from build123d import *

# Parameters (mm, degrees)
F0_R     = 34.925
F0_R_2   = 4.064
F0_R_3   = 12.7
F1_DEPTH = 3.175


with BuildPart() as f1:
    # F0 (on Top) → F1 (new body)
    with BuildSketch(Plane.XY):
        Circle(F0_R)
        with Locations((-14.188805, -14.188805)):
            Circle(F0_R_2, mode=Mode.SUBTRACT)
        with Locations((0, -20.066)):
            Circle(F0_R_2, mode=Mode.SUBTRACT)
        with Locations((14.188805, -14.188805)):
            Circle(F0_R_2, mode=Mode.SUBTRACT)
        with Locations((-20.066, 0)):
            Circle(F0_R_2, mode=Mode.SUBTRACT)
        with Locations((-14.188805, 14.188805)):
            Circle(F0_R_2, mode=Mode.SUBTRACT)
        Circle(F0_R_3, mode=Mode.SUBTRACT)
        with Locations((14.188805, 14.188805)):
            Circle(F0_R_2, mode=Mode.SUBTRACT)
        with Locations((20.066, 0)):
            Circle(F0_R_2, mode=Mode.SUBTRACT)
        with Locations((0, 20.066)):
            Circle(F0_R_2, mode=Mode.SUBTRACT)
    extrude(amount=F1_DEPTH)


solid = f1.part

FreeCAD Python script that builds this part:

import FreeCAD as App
import Part
import Sketcher

V = App.Vector
Q = App.Units.Quantity

doc = App.newDocument("Part")
params = doc.addObject("Spreadsheet::Sheet", "Params")
for row, (alias, value) in enumerate([
    ("sketch1_diameter", "1 in"),
    ("sketch1_diameter2", "2.75 in"),
    ("sketch1_diameter3", "0.32 in"),
    ("pad1_length", "0.125 in"),
], start=1):
    params.set(f"A{row}", alias)
    params.set(f"B{row}", "=" + value)
    params.setAlias(f"B{row}", alias)

body = doc.addObject("PartDesign::Body", "Body")

# Sketch on XY plane
sketch1 = body.newObject("Sketcher::SketchObject", "Sketch")
sketch1.AttachmentSupport = (doc.getObject("XY_Plane"), [""])
sketch1.MapMode = "FlatFace"
sketch1.addGeometry([
    Part.Circle(V(0, 0, 0), V(0, 0, 1), 34.9),  # 0
    Part.Circle(V(-14.2, -14.2, 0), V(0, 0, 1), 4.1),  # 1
    Part.Circle(V(0, -20.1, 0), V(0, 0, 1), 4.1),  # 2
    Part.Circle(V(14.2, -14.2, 0), V(0, 0, 1), 4.1),  # 3
    Part.Circle(V(-20.1, 0, 0), V(0, 0, 1), 4.1),  # 4
    Part.Circle(V(-14.2, 14.2, 0), V(0, 0, 1), 4.1),  # 5
    Part.Circle(V(0, 0, 0), V(0, 0, 1), 12.7),  # 6
    Part.Circle(V(20.1, 0, 0), V(0, 0, 1), 4.1),  # 7
    Part.Circle(V(0, 20.1, 0), V(0, 0, 1), 4.1),  # 8
    Part.Circle(V(14.2, 14.2, 0), V(0, 0, 1), 4.1),  # 9
], False)
sketch1.addConstraint([
    Sketcher.Constraint("Coincident", 0, 3, -1, 1),
    Sketcher.Constraint("Coincident", 6, 3, -1, 1),
    Sketcher.Constraint("Equal", 1, 2),
    Sketcher.Constraint("Equal", 2, 3),
    Sketcher.Constraint("Equal", 3, 4),
    Sketcher.Constraint("Equal", 4, 5),
    Sketcher.Constraint("Equal", 5, 7),
    Sketcher.Constraint("Equal", 7, 8),
    Sketcher.Constraint("Equal", 8, 9),
    Sketcher.Constraint("Symmetric", 3, 3, 5, 3, -1, 1),
    Sketcher.Constraint("Symmetric", 4, 3, 7, 3, -1, 1),
    Sketcher.Constraint("Symmetric", 2, 3, 8, 3, -1, 1),
    Sketcher.Constraint("Symmetric", 1, 3, 9, 3, -1, 1),
    Sketcher.Constraint("Symmetric", 1, 3, 3, 3, -2),
    Sketcher.Constraint("PointOnObject", 2, 3, -2),
    Sketcher.Constraint("PointOnObject", 4, 3, -1),
    Sketcher.Constraint("Diameter", 6, Q("1 in")),
    Sketcher.Constraint("Diameter", 0, Q("2.75 in")),
    Sketcher.Constraint("Diameter", 1, Q("0.32 in")),
    Sketcher.Constraint("DistanceY", 2, 3, -1, 1, Q("0.79 in")),
    Sketcher.Constraint("DistanceX", 4, 3, -1, 1, Q("0.79 in")),
    Sketcher.Constraint("DistanceX", 1, 3, 3, 3, 28.37761),
    Sketcher.Constraint("DistanceY", 1, 3, 5, 3, 28.37761),
])
sketch1.setExpression("Constraints[16]", "Params.sketch1_diameter")
sketch1.setExpression("Constraints[17]", "Params.sketch1_diameter2")
sketch1.setExpression("Constraints[18]", "Params.sketch1_diameter3")
pad1 = body.newObject("PartDesign::Pad", "Pad")
pad1.Profile = sketch1
pad1.setExpression("Length", "Params.pad1_length")

doc.recompute()
